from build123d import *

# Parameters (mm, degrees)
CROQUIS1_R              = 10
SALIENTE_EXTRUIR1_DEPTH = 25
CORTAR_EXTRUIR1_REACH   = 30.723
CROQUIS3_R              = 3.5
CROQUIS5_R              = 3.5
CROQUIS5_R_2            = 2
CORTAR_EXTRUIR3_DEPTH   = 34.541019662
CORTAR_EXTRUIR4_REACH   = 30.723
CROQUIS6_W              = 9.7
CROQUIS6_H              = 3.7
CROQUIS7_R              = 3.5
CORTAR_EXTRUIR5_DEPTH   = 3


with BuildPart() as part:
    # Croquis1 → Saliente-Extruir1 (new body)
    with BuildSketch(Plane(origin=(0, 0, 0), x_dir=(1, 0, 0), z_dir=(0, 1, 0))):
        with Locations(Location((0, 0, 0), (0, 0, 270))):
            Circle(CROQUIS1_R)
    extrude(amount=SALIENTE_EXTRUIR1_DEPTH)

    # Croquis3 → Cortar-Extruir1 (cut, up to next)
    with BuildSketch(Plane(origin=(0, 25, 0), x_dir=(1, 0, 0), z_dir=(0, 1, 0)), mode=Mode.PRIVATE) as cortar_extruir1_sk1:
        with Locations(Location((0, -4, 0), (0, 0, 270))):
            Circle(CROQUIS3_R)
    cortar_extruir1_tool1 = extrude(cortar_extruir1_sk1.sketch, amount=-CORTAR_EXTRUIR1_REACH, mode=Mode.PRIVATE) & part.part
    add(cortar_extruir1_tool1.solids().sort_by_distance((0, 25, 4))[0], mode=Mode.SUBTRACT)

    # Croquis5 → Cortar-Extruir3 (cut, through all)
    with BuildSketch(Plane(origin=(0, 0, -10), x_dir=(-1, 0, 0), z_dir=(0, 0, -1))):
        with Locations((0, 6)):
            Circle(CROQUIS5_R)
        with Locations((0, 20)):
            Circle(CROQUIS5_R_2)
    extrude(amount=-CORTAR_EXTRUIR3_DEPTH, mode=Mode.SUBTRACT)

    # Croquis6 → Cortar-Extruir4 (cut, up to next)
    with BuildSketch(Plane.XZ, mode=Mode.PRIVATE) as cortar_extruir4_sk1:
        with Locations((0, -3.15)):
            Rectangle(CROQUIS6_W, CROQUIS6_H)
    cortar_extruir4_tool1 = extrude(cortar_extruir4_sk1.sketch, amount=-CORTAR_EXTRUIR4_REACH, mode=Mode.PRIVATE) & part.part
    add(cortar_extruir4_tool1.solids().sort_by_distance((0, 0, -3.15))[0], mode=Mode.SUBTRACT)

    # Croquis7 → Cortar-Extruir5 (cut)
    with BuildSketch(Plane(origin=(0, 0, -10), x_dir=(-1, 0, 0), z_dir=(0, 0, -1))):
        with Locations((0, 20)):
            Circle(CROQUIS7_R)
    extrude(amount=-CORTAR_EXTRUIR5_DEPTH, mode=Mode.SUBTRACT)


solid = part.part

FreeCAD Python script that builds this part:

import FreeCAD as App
import Part
import Sketcher
Q = App.Units.Quantity

doc = App.newDocument("Part")
params = doc.addObject("Spreadsheet::Sheet", "Params")
for row, (alias, value) in enumerate([
    ("sketch1_diameter", "20 mm"),
    ("pad1_length", "25 mm"),
    ("sketch2_diameter", "7 mm"),
    ("sketch3_diameter", "7 mm"),
    ("sketch3_diameter2", "4 mm"),
    ("sketch4_width", "9.7 mm"),
    ("sketch4_height", "3.7 mm"),
    ("sketch5_diameter", "7 mm"),
    ("pocket4_length", "3 mm"),
], start=1):
    params.set(f"A{row}", alias)
    params.set(f"B{row}", "=" + value)
    params.setAlias(f"B{row}", alias)

body = doc.addObject("PartDesign::Body", "Body")

sketch1 = doc.addObject("Sketcher::SketchObject", "Sketch")
body.addObject(sketch1)
sketch1.AttachmentSupport = (doc.XZ_Plane, [""])
sketch1.MapMode = "FlatFace"
sketch1.addGeometry(Part.Circle(App.Vector(0, 0, 0), App.Vector(0, 0, 1), 10), False)
sketch1.addConstraint(Sketcher.Constraint("Coincident", 0, 3, -1, 1))
sketch1.addConstraint(Sketcher.Constraint("Diameter", 0, Q("20 mm")))
sketch1.setExpression("Constraints[1]", "Params.sketch1_diameter")
pad1 = doc.addObject("PartDesign::Pad", "Pad")
body.addObject(pad1)
pad1.Profile = sketch1
pad1.setExpression("Length", "Params.pad1_length")
pad1.Reversed = True

sketch2 = doc.addObject("Sketcher::SketchObject", "Sketch001")
body.addObject(sketch2)
sketch2.AttachmentSupport = (doc.XZ_Plane, [""])
sketch2.MapMode = "FlatFace"
sketch2.AttachmentOffset = App.Placement(App.Vector(0, 0, -25), App.Rotation())
sketch2.addGeometry(Part.Circle(App.Vector(0, 4, 0), App.Vector(0, 0, 1), 3.5), False)
sketch2.addConstraint(Sketcher.Constraint("PointOnObject", 0, 3, -2))
sketch2.addConstraint(Sketcher.Constraint("Diameter", 0, Q("7 mm")))
sketch2.addConstraint(Sketcher.Constraint("DistanceY", -1, 1, 0, 3, Q("4 mm")))
sketch2.setExpression("Constraints[1]", "Params.sketch2_diameter")
pocket1 = doc.addObject("PartDesign::Pocket", "Pocket")
body.addObject(pocket1)
pocket1.Profile = sketch2
pocket1.Type = "UpToFirst"
pocket1.Reversed = True

sketch3 = doc.addObject("Sketcher::SketchObject", "Sketch002")
body.addObject(sketch3)
sketch3.AttachmentSupport = (doc.XY_Plane, [""])
sketch3.MapMode = "FlatFace"
sketch3.AttachmentOffset = App.Placement(App.Vector(0, 0, -10), App.Rotation())
sketch3.addGeometry(Part.Circle(App.Vector(0, 6, 0), App.Vector(0, 0, 1), 3.5), False)
sketch3.addGeometry(Part.Circle(App.Vector(0, 20, 0), App.Vector(0, 0, 1), 2), False)
sketch3.addConstraint(Sketcher.Constraint("PointOnObject", 0, 3, -2))
sketch3.addConstraint(Sketcher.Constraint("PointOnObject", 1, 3, -2))
sketch3.addConstraint(Sketcher.Constraint("Diameter", 0, Q("7 mm")))
sketch3.addConstraint(Sketcher.Constraint("Diameter", 1, Q("4 mm")))
sketch3.addConstraint(Sketcher.Constraint("DistanceY", -1, 1, 0, 3, Q("6 mm")))
sketch3.addConstraint(Sketcher.Constraint("DistanceY", -1, 1, 1, 3, Q("20 mm")))
sketch3.setExpression("Constraints[2]", "Params.sketch3_diameter")
sketch3.setExpression("Constraints[3]", "Params.sketch3_diameter2")
pocket2 = doc.addObject("PartDesign::Pocket", "Pocket001")
body.addObject(pocket2)
pocket2.Profile = sketch3
pocket2.Type = "ThroughAll"
pocket2.Reversed = True

sketch4 = doc.addObject("Sketcher::SketchObject", "Sketch003")
body.addObject(sketch4)
sketch4.AttachmentSupport = (doc.XZ_Plane, [""])
sketch4.MapMode = "FlatFace"
sketch4.addGeometry(Part.LineSegment(App.Vector(-4.8, -1.3, 0), App.Vector(-4.8, -5, 0)), False)
sketch4.addGeometry(Part.LineSegment(App.Vector(-4.8, -5, 0), App.Vector(4.8, -5, 0)), False)
sketch4.addGeometry(Part.LineSegment(App.Vector(4.8, -5, 0), App.Vector(4.8, -1.3, 0)), False)
sketch4.addGeometry(Part.LineSegment(App.Vector(4.8, -1.3, 0), App.Vector(-4.8, -1.3, 0)), False)
sketch4.addConstraint(Sketcher.Constraint("Coincident", 0, 2, 1, 1))
sketch4.addConstraint(Sketcher.Constraint("Coincident", 1, 2, 2, 1))
sketch4.addConstraint(Sketcher.Constraint("Coincident", 2, 2, 3, 1))
sketch4.addConstraint(Sketcher.Constraint("Coincident", 3, 2, 0, 1))
sketch4.addConstraint(Sketcher.Constraint("Vertical", 0))
sketch4.addConstraint(Sketcher.Constraint("Horizontal", 1))
sketch4.addConstraint(Sketcher.Constraint("Vertical", 2))
sketch4.addConstraint(Sketcher.Constraint("Horizontal", 3))
sketch4.addConstraint(Sketcher.Constraint("DistanceX", 1, 1, 1, 2, Q("9.7 mm")))
sketch4.addConstraint(Sketcher.Constraint("DistanceY", 0, 2, 0, 1, Q("3.7 mm")))
sketch4.addConstraint(Sketcher.Constraint("DistanceY", 0, 2, -1, 1, Q("5 mm")))
sketch4.addConstraint(Sketcher.Constraint("DistanceX", 0, 2, -1, 1, Q("4.85 mm")))
sketch4.setExpression("Constraints[8]", "Params.sketch4_width")
sketch4.setExpression("Constraints[9]", "Params.sketch4_height")
pocket3 = doc.addObject("PartDesign::Pocket", "Pocket002")
body.addObject(pocket3)
pocket3.Profile = sketch4
pocket3.Type = "UpToFirst"

sketch5 = doc.addObject("Sketcher::SketchObject", "Sketch004")
body.addObject(sketch5)
sketch5.AttachmentSupport = (doc.XY_Plane, [""])
sketch5.MapMode = "FlatFace"
sketch5.AttachmentOffset = App.Placement(App.Vector(0, 0, -10), App.Rotation())
sketch5.addGeometry(Part.Circle(App.Vector(0, 20, 0), App.Vector(0, 0, 1), 3.5), False)
sketch5.addConstraint(Sketcher.Constraint("PointOnObject", 0, 3, -2))
sketch5.addConstraint(Sketcher.Constraint("Diameter", 0, Q("7 mm")))
sketch5.addConstraint(Sketcher.Constraint("DistanceY", -1, 1, 0, 3, Q("20 mm")))
sketch5.setExpression("Constraints[1]", "Params.sketch5_diameter")
pocket4 = doc.addObject("PartDesign::Pocket", "Pocket003")
body.addObject(pocket4)
pocket4.Profile = sketch5
pocket4.setExpression("Length", "Params.pocket4_length")
pocket4.Reversed = True

doc.recompute()
